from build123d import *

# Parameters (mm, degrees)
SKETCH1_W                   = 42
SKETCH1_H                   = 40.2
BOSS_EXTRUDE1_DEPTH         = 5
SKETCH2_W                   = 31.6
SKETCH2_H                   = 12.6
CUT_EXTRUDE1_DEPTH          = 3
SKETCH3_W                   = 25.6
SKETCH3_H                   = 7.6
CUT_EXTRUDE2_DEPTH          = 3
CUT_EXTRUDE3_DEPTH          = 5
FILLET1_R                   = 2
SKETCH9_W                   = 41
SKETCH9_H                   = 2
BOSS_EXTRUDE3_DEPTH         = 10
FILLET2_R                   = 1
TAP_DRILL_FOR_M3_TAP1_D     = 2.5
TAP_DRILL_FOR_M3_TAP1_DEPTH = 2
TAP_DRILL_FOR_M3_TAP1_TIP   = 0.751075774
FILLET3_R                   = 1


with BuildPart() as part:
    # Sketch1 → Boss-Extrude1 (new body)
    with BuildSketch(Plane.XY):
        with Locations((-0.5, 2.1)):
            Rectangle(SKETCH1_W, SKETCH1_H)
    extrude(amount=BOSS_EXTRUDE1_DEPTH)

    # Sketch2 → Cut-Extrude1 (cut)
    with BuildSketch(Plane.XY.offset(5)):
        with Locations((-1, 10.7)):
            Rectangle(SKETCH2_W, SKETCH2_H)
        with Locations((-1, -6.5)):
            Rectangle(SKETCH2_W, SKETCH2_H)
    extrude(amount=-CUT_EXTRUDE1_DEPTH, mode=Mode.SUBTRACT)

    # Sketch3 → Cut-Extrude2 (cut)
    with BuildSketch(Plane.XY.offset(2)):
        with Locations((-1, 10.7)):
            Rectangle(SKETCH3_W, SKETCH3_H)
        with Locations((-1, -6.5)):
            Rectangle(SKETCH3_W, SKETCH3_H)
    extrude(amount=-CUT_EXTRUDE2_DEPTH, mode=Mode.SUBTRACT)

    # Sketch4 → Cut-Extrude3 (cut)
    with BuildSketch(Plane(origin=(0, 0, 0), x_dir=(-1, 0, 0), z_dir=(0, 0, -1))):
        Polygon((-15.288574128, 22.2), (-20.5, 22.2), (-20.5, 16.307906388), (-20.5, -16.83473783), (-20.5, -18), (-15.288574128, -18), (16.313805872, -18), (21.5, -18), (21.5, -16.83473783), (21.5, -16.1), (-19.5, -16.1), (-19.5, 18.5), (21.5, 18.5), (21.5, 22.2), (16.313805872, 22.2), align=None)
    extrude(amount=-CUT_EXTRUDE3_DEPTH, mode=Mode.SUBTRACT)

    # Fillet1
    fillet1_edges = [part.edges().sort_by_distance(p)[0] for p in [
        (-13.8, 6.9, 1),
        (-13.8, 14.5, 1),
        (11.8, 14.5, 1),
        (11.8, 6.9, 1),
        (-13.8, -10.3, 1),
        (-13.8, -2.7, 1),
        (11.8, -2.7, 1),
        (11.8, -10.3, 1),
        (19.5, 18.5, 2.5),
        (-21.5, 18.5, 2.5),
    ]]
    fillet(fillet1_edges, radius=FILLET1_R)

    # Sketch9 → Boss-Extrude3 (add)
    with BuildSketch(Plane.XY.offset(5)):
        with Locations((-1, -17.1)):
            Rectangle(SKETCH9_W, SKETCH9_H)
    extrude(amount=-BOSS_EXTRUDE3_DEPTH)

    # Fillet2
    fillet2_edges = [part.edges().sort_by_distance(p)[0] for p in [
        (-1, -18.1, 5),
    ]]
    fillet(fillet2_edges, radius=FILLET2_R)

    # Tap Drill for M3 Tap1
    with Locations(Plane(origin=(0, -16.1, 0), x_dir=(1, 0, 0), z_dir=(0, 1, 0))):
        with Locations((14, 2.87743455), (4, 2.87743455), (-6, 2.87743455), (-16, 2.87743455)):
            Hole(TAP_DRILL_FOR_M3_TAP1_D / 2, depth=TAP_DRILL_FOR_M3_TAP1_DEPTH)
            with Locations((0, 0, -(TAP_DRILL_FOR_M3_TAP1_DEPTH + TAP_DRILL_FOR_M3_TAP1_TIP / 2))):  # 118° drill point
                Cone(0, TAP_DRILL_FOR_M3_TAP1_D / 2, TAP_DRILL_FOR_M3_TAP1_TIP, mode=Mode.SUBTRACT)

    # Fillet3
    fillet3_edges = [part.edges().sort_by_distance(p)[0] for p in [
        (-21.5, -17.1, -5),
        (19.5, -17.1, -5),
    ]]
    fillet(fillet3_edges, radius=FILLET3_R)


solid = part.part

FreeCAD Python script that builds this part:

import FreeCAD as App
import Part
import Sketcher
Q = App.Units.Quantity


def edges_at(feature, points):
    """Names of the edges that pass closest to the given points."""
    edges = feature.Shape.Edges
    near = lambda p: min(range(len(edges)), key=lambda i: edges[i].distToShape(Part.Vertex(*p))[0])
    return sorted({f"Edge{near(p) + 1}" for p in points})


def add_polygon(sketch, points):
    """Adds a closed chain of lines whose ends are joined by coincident constraints."""
    first, n = sketch.GeometryCount, len(points)
    for a, b in zip(points, points[1:] + points[:1]):
        sketch.addGeometry(Part.LineSegment(App.Vector(*a, 0), App.Vector(*b, 0)), False)
    for i in range(n):
        sketch.addConstraint(Sketcher.Constraint("Coincident", first + i, 2, first + (i + 1) % n, 1))

doc = App.newDocument("Part")
body = doc.addObject("PartDesign::Body", "Body")

sketch1 = body.newObject("Sketcher::SketchObject", "Sketch")
sketch1.AttachmentSupport = (doc.getObject("XY_Plane"), [""])
sketch1.MapMode = "FlatFace"
add_polygon(sketch1, [(-21.5, 22.2), (-21.5, -18), (20.5, -18), (20.5, 22.2)])
sketch1.addConstraint([
    Sketcher.Constraint("Vertical", 0),
    Sketcher.Constraint("Horizontal", 1),
    Sketcher.Constraint("Vertical", 2),
    Sketcher.Constraint("Horizontal", 3),
    Sketcher.Constraint("DistanceX", 1, 1, 1, 2, Q("42 mm")),
    Sketcher.Constraint("DistanceY", 0, 2, 0, 1, Q("40.2 mm")),
    Sketcher.Constraint("DistanceY", 0, 2, -1, 1, Q("18 mm")),
    Sketcher.Constraint("DistanceX", 0, 2, -1, 1, Q("21.5 mm")),
])
pad1 = body.newObject("PartDesign::Pad", "Pad")
pad1.Profile = sketch1
pad1.Length = 5

sketch2 = body.newObject("Sketcher::SketchObject", "Sketch001")
sketch2.AttachmentSupport = (doc.getObject("XY_Plane"), [""])
sketch2.MapMode = "FlatFace"
sketch2.AttachmentOffset = App.Placement(App.Vector(0, 0, 5), App.Rotation())
add_polygon(sketch2, [(-16.8, 17), (-16.8, 4.4), (14.8, 4.4), (14.8, 17)])
add_polygon(sketch2, [(-16.8, -0.2), (-16.8, -12.8), (14.8, -12.8), (14.8, -0.2)])
sketch2.addConstraint([
    Sketcher.Constraint("Vertical", 0),
    Sketcher.Constraint("Horizontal", 1),
    Sketcher.Constraint("Vertical", 2),
    Sketcher.Constraint("Horizontal", 3),
    Sketcher.Constraint("Vertical", 4),
    Sketcher.Constraint("Horizontal", 5),
    Sketcher.Constraint("Vertical", 6),
    Sketcher.Constraint("Horizontal", 7),
    Sketcher.Constraint("Vertical", 3, 2, 4, 2),
    Sketcher.Constraint("Vertical", 2, 2, 5, 2),
    Sketcher.Constraint("Equal", 2, 4),
    Sketcher.Constraint("DistanceX", 1, 1, 1, 2, Q("31.6 mm")),
    Sketcher.Constraint("DistanceY", 0, 2, 0, 1, Q("12.6 mm")),
    Sketcher.Constraint("DistanceY", -1, 1, 2, 2, Q("17 mm")),
    Sketcher.Constraint("DistanceX", 0, 2, -1, 1, Q("16.8 mm")),
    Sketcher.Constraint("DistanceY", 4, 2, -1, 1, Q("12.8 mm")),
])
pocket1 = body.newObject("PartDesign::Pocket", "Pocket")
pocket1.Profile = sketch2
pocket1.Length = 3

sketch3 = body.newObject("Sketcher::SketchObject", "Sketch002")
sketch3.AttachmentSupport = (doc.getObject("XY_Plane"), [""])
sketch3.MapMode = "FlatFace"
sketch3.AttachmentOffset = App.Placement(App.Vector(0, 0, 2), App.Rotation())
add_polygon(sketch3, [(-13.8, 14.5), (-13.8, 6.9), (11.8, 6.9), (11.8, 14.5)])
add_polygon(sketch3, [(-13.8, -2.7), (-13.8, -10.3), (11.8, -10.3), (11.8, -2.7)])
sketch3.addConstraint([
    Sketcher.Constraint("Vertical", 0),
    Sketcher.Constraint("Horizontal", 1),
    Sketcher.Constraint("Vertical", 2),
    Sketcher.Constraint("Horizontal", 3),
    Sketcher.Constraint("Vertical", 4),
    Sketcher.Constraint("Horizontal", 5),
    Sketcher.Constraint("Vertical", 6),
    Sketcher.Constraint("Horizontal", 7),
    Sketcher.Constraint("Vertical", 3, 2, 4, 2),
    Sketcher.Constraint("Vertical", 2, 2, 5, 2),
    Sketcher.Constraint("Equal", 2, 4),
    Sketcher.Constraint("DistanceX", 1, 1, 1, 2, Q("25.6 mm")),
    Sketcher.Constraint("DistanceY", 0, 2, 0, 1, Q("7.6 mm")),
    Sketcher.Constraint("DistanceX", 0, 2, -1, 1, Q("13.8 mm")),
    Sketcher.Constraint("DistanceY", -1, 1, 0, 2, Q("6.9 mm")),
    Sketcher.Constraint("DistanceY", 4, 2, -1, 1, Q("10.3 mm")),
])
pocket2 = body.newObject("PartDesign::Pocket", "Pocket001")
pocket2.Profile = sketch3
pocket2.Length = 3

sketch4 = body.newObject("Sketcher::SketchObject", "Sketch003")
sketch4.AttachmentSupport = (doc.getObject("XY_Plane"), [""])
sketch4.MapMode = "FlatFace"
add_polygon(sketch4, [(20.5, 22.2), (20.5, -18), (-21.5, -18), (-21.5, -16.1), (19.5, -16.1), (19.5, 18.5), (-21.5, 18.5), (-21.5, 22.2)])
sketch4.addConstraint([
    Sketcher.Constraint("Vertical", 0),
    Sketcher.Constraint("Horizontal", 1),
    Sketcher.Constraint("Vertical", 2),
    Sketcher.Constraint("Horizontal", 3),
    Sketcher.Constraint("Vertical", 4),
    Sketcher.Constraint("Horizontal", 5),
    Sketcher.Constraint("Vertical", 6),
    Sketcher.Constraint("Horizontal", 7),
    Sketcher.Constraint("Vertical", 2, 2, 5, 2),
    Sketcher.Constraint("DistanceX", 1, 2, 1, 1, Q("42 mm")),
    Sketcher.Constraint("DistanceX", 3, 1, 3, 2, Q("41 mm")),
    Sketcher.Constraint("DistanceY", 0, 2, 0, 1, Q("40.2 mm")),
    Sketcher.Constraint("DistanceY", 2, 1, 2, 2, Q("1.9 mm")),
    Sketcher.Constraint("DistanceY", 4, 1, 4, 2, Q("34.6 mm")),
    Sketcher.Constraint("DistanceY", 0, 2, -1, 1, Q("18 mm")),
    Sketcher.Constraint("DistanceX", -1, 1, 0, 2, Q("20.5 mm")),
])
pocket3 = body.newObject("PartDesign::Pocket", "Pocket002")
pocket3.Profile = sketch4
pocket3.Length = 5
pocket3.Reversed = True
doc.recompute()

fillet = body.newObject("PartDesign::Fillet", "Fillet")
fillet.Base = (pocket3, edges_at(pocket3, [
    (-13.8, 6.9, 1),
    (-13.8, 14.5, 1),
    (11.8, 14.5, 1),
    (11.8, 6.9, 1),
    (-13.8, -10.3, 1),
    (-13.8, -2.7, 1),
    (11.8, -2.7, 1),
    (11.8, -10.3, 1),
    (19.5, 18.5, 2.5),
    (-21.5, 18.5, 2.5),
]))
fillet.Radius = 2

sketch5 = body.newObject("Sketcher::SketchObject", "Sketch004")
sketch5.AttachmentSupport = (doc.getObject("XY_Plane"), [""])
sketch5.MapMode = "FlatFace"
sketch5.AttachmentOffset = App.Placement(App.Vector(0, 0, 5), App.Rotation())
add_polygon(sketch5, [(-21.5, -16.1), (-21.5, -18.1), (19.5, -18.1), (19.5, -16.1)])
sketch5.addConstraint([
    Sketcher.Constraint("Vertical", 0),
    Sketcher.Constraint("Horizontal", 1),
    Sketcher.Constraint("Vertical", 2),
    Sketcher.Constraint("Horizontal", 3),
    Sketcher.Constraint("DistanceX", 1, 1, 1, 2, Q("41 mm")),
    Sketcher.Constraint("DistanceY", 0, 2, 0, 1, Q("2 mm")),
    Sketcher.Constraint("DistanceX", 0, 2, -1, 1, Q("21.5 mm")),
    Sketcher.Constraint("DistanceY", 0, 2, -1, 1, Q("18.1 mm")),
])
pad2 = body.newObject("PartDesign::Pad", "Pad001")
pad2.Profile = sketch5
pad2.Length = 10
pad2.Reversed = True
doc.recompute()

fillet2 = body.newObject("PartDesign::Fillet", "Fillet001")
fillet2.Base = (pad2, edges_at(pad2, [(-1, -18.1, 5)]))
fillet2.Radius = 1

sketch6 = body.newObject("Sketcher::SketchObject", "Sketch005")
sketch6.AttachmentSupport = (doc.getObject("XZ_Plane"), [""])
sketch6.MapMode = "FlatFace"
sketch6.AttachmentOffset = App.Placement(App.Vector(0, 0, 16.1), App.Rotation())
sketch6.addGeometry([
    Part.Circle(App.Vector(14, -2.877435, 0), App.Vector(0, 0, 1), 1.25),
    Part.Circle(App.Vector(4, -2.877435, 0), App.Vector(0, 0, 1), 1.25),
    Part.Circle(App.Vector(-6, -2.877435, 0), App.Vector(0, 0, 1), 1.25),
    Part.Circle(App.Vector(-16, -2.877435, 0), App.Vector(0, 0, 1), 1.25),
], False)
sketch6.addConstraint([
    Sketcher.Constraint("Equal", 0, 1),
    Sketcher.Constraint("Equal", 1, 2),
    Sketcher.Constraint("Equal", 2, 3),
    Sketcher.Constraint("Horizontal", 0, 3, 1, 3),
    Sketcher.Constraint("Horizontal", 1, 3, 2, 3),
    Sketcher.Constraint("Horizontal", 2, 3, 3, 3),
    Sketcher.Constraint("Diameter", 0, Q("2.5 mm")),
    Sketcher.Constraint("DistanceX", -1, 1, 0, 3, Q("14 mm")),
    Sketcher.Constraint("DistanceX", -1, 1, 1, 3, Q("4 mm")),
    Sketcher.Constraint("DistanceX", 2, 3, -1, 1, Q("6 mm")),
    Sketcher.Constraint("DistanceX", 3, 3, -1, 1, Q("16 mm")),
    Sketcher.Constraint("DistanceY", 0, 3, -1, 1, Q("2.877435 mm")),
])
doc.recompute()
hole = body.newObject("PartDesign::Hole", "Hole")
hole.Profile = sketch6
hole.ThreadType = "None"
hole.Diameter = 2.5
hole.DepthType = "Dimension"
hole.Depth = 2
hole.DrillPoint = "Angled"
hole.DrillPointAngle = 118
hole.Reversed = True
doc.recompute()

fillet3 = body.newObject("PartDesign::Fillet", "Fillet002")
fillet3.Base = (hole, edges_at(hole, [(-21.5, -17.1, -5), (19.5, -17.1, -5)]))
fillet3.Radius = 1

doc.recompute()
